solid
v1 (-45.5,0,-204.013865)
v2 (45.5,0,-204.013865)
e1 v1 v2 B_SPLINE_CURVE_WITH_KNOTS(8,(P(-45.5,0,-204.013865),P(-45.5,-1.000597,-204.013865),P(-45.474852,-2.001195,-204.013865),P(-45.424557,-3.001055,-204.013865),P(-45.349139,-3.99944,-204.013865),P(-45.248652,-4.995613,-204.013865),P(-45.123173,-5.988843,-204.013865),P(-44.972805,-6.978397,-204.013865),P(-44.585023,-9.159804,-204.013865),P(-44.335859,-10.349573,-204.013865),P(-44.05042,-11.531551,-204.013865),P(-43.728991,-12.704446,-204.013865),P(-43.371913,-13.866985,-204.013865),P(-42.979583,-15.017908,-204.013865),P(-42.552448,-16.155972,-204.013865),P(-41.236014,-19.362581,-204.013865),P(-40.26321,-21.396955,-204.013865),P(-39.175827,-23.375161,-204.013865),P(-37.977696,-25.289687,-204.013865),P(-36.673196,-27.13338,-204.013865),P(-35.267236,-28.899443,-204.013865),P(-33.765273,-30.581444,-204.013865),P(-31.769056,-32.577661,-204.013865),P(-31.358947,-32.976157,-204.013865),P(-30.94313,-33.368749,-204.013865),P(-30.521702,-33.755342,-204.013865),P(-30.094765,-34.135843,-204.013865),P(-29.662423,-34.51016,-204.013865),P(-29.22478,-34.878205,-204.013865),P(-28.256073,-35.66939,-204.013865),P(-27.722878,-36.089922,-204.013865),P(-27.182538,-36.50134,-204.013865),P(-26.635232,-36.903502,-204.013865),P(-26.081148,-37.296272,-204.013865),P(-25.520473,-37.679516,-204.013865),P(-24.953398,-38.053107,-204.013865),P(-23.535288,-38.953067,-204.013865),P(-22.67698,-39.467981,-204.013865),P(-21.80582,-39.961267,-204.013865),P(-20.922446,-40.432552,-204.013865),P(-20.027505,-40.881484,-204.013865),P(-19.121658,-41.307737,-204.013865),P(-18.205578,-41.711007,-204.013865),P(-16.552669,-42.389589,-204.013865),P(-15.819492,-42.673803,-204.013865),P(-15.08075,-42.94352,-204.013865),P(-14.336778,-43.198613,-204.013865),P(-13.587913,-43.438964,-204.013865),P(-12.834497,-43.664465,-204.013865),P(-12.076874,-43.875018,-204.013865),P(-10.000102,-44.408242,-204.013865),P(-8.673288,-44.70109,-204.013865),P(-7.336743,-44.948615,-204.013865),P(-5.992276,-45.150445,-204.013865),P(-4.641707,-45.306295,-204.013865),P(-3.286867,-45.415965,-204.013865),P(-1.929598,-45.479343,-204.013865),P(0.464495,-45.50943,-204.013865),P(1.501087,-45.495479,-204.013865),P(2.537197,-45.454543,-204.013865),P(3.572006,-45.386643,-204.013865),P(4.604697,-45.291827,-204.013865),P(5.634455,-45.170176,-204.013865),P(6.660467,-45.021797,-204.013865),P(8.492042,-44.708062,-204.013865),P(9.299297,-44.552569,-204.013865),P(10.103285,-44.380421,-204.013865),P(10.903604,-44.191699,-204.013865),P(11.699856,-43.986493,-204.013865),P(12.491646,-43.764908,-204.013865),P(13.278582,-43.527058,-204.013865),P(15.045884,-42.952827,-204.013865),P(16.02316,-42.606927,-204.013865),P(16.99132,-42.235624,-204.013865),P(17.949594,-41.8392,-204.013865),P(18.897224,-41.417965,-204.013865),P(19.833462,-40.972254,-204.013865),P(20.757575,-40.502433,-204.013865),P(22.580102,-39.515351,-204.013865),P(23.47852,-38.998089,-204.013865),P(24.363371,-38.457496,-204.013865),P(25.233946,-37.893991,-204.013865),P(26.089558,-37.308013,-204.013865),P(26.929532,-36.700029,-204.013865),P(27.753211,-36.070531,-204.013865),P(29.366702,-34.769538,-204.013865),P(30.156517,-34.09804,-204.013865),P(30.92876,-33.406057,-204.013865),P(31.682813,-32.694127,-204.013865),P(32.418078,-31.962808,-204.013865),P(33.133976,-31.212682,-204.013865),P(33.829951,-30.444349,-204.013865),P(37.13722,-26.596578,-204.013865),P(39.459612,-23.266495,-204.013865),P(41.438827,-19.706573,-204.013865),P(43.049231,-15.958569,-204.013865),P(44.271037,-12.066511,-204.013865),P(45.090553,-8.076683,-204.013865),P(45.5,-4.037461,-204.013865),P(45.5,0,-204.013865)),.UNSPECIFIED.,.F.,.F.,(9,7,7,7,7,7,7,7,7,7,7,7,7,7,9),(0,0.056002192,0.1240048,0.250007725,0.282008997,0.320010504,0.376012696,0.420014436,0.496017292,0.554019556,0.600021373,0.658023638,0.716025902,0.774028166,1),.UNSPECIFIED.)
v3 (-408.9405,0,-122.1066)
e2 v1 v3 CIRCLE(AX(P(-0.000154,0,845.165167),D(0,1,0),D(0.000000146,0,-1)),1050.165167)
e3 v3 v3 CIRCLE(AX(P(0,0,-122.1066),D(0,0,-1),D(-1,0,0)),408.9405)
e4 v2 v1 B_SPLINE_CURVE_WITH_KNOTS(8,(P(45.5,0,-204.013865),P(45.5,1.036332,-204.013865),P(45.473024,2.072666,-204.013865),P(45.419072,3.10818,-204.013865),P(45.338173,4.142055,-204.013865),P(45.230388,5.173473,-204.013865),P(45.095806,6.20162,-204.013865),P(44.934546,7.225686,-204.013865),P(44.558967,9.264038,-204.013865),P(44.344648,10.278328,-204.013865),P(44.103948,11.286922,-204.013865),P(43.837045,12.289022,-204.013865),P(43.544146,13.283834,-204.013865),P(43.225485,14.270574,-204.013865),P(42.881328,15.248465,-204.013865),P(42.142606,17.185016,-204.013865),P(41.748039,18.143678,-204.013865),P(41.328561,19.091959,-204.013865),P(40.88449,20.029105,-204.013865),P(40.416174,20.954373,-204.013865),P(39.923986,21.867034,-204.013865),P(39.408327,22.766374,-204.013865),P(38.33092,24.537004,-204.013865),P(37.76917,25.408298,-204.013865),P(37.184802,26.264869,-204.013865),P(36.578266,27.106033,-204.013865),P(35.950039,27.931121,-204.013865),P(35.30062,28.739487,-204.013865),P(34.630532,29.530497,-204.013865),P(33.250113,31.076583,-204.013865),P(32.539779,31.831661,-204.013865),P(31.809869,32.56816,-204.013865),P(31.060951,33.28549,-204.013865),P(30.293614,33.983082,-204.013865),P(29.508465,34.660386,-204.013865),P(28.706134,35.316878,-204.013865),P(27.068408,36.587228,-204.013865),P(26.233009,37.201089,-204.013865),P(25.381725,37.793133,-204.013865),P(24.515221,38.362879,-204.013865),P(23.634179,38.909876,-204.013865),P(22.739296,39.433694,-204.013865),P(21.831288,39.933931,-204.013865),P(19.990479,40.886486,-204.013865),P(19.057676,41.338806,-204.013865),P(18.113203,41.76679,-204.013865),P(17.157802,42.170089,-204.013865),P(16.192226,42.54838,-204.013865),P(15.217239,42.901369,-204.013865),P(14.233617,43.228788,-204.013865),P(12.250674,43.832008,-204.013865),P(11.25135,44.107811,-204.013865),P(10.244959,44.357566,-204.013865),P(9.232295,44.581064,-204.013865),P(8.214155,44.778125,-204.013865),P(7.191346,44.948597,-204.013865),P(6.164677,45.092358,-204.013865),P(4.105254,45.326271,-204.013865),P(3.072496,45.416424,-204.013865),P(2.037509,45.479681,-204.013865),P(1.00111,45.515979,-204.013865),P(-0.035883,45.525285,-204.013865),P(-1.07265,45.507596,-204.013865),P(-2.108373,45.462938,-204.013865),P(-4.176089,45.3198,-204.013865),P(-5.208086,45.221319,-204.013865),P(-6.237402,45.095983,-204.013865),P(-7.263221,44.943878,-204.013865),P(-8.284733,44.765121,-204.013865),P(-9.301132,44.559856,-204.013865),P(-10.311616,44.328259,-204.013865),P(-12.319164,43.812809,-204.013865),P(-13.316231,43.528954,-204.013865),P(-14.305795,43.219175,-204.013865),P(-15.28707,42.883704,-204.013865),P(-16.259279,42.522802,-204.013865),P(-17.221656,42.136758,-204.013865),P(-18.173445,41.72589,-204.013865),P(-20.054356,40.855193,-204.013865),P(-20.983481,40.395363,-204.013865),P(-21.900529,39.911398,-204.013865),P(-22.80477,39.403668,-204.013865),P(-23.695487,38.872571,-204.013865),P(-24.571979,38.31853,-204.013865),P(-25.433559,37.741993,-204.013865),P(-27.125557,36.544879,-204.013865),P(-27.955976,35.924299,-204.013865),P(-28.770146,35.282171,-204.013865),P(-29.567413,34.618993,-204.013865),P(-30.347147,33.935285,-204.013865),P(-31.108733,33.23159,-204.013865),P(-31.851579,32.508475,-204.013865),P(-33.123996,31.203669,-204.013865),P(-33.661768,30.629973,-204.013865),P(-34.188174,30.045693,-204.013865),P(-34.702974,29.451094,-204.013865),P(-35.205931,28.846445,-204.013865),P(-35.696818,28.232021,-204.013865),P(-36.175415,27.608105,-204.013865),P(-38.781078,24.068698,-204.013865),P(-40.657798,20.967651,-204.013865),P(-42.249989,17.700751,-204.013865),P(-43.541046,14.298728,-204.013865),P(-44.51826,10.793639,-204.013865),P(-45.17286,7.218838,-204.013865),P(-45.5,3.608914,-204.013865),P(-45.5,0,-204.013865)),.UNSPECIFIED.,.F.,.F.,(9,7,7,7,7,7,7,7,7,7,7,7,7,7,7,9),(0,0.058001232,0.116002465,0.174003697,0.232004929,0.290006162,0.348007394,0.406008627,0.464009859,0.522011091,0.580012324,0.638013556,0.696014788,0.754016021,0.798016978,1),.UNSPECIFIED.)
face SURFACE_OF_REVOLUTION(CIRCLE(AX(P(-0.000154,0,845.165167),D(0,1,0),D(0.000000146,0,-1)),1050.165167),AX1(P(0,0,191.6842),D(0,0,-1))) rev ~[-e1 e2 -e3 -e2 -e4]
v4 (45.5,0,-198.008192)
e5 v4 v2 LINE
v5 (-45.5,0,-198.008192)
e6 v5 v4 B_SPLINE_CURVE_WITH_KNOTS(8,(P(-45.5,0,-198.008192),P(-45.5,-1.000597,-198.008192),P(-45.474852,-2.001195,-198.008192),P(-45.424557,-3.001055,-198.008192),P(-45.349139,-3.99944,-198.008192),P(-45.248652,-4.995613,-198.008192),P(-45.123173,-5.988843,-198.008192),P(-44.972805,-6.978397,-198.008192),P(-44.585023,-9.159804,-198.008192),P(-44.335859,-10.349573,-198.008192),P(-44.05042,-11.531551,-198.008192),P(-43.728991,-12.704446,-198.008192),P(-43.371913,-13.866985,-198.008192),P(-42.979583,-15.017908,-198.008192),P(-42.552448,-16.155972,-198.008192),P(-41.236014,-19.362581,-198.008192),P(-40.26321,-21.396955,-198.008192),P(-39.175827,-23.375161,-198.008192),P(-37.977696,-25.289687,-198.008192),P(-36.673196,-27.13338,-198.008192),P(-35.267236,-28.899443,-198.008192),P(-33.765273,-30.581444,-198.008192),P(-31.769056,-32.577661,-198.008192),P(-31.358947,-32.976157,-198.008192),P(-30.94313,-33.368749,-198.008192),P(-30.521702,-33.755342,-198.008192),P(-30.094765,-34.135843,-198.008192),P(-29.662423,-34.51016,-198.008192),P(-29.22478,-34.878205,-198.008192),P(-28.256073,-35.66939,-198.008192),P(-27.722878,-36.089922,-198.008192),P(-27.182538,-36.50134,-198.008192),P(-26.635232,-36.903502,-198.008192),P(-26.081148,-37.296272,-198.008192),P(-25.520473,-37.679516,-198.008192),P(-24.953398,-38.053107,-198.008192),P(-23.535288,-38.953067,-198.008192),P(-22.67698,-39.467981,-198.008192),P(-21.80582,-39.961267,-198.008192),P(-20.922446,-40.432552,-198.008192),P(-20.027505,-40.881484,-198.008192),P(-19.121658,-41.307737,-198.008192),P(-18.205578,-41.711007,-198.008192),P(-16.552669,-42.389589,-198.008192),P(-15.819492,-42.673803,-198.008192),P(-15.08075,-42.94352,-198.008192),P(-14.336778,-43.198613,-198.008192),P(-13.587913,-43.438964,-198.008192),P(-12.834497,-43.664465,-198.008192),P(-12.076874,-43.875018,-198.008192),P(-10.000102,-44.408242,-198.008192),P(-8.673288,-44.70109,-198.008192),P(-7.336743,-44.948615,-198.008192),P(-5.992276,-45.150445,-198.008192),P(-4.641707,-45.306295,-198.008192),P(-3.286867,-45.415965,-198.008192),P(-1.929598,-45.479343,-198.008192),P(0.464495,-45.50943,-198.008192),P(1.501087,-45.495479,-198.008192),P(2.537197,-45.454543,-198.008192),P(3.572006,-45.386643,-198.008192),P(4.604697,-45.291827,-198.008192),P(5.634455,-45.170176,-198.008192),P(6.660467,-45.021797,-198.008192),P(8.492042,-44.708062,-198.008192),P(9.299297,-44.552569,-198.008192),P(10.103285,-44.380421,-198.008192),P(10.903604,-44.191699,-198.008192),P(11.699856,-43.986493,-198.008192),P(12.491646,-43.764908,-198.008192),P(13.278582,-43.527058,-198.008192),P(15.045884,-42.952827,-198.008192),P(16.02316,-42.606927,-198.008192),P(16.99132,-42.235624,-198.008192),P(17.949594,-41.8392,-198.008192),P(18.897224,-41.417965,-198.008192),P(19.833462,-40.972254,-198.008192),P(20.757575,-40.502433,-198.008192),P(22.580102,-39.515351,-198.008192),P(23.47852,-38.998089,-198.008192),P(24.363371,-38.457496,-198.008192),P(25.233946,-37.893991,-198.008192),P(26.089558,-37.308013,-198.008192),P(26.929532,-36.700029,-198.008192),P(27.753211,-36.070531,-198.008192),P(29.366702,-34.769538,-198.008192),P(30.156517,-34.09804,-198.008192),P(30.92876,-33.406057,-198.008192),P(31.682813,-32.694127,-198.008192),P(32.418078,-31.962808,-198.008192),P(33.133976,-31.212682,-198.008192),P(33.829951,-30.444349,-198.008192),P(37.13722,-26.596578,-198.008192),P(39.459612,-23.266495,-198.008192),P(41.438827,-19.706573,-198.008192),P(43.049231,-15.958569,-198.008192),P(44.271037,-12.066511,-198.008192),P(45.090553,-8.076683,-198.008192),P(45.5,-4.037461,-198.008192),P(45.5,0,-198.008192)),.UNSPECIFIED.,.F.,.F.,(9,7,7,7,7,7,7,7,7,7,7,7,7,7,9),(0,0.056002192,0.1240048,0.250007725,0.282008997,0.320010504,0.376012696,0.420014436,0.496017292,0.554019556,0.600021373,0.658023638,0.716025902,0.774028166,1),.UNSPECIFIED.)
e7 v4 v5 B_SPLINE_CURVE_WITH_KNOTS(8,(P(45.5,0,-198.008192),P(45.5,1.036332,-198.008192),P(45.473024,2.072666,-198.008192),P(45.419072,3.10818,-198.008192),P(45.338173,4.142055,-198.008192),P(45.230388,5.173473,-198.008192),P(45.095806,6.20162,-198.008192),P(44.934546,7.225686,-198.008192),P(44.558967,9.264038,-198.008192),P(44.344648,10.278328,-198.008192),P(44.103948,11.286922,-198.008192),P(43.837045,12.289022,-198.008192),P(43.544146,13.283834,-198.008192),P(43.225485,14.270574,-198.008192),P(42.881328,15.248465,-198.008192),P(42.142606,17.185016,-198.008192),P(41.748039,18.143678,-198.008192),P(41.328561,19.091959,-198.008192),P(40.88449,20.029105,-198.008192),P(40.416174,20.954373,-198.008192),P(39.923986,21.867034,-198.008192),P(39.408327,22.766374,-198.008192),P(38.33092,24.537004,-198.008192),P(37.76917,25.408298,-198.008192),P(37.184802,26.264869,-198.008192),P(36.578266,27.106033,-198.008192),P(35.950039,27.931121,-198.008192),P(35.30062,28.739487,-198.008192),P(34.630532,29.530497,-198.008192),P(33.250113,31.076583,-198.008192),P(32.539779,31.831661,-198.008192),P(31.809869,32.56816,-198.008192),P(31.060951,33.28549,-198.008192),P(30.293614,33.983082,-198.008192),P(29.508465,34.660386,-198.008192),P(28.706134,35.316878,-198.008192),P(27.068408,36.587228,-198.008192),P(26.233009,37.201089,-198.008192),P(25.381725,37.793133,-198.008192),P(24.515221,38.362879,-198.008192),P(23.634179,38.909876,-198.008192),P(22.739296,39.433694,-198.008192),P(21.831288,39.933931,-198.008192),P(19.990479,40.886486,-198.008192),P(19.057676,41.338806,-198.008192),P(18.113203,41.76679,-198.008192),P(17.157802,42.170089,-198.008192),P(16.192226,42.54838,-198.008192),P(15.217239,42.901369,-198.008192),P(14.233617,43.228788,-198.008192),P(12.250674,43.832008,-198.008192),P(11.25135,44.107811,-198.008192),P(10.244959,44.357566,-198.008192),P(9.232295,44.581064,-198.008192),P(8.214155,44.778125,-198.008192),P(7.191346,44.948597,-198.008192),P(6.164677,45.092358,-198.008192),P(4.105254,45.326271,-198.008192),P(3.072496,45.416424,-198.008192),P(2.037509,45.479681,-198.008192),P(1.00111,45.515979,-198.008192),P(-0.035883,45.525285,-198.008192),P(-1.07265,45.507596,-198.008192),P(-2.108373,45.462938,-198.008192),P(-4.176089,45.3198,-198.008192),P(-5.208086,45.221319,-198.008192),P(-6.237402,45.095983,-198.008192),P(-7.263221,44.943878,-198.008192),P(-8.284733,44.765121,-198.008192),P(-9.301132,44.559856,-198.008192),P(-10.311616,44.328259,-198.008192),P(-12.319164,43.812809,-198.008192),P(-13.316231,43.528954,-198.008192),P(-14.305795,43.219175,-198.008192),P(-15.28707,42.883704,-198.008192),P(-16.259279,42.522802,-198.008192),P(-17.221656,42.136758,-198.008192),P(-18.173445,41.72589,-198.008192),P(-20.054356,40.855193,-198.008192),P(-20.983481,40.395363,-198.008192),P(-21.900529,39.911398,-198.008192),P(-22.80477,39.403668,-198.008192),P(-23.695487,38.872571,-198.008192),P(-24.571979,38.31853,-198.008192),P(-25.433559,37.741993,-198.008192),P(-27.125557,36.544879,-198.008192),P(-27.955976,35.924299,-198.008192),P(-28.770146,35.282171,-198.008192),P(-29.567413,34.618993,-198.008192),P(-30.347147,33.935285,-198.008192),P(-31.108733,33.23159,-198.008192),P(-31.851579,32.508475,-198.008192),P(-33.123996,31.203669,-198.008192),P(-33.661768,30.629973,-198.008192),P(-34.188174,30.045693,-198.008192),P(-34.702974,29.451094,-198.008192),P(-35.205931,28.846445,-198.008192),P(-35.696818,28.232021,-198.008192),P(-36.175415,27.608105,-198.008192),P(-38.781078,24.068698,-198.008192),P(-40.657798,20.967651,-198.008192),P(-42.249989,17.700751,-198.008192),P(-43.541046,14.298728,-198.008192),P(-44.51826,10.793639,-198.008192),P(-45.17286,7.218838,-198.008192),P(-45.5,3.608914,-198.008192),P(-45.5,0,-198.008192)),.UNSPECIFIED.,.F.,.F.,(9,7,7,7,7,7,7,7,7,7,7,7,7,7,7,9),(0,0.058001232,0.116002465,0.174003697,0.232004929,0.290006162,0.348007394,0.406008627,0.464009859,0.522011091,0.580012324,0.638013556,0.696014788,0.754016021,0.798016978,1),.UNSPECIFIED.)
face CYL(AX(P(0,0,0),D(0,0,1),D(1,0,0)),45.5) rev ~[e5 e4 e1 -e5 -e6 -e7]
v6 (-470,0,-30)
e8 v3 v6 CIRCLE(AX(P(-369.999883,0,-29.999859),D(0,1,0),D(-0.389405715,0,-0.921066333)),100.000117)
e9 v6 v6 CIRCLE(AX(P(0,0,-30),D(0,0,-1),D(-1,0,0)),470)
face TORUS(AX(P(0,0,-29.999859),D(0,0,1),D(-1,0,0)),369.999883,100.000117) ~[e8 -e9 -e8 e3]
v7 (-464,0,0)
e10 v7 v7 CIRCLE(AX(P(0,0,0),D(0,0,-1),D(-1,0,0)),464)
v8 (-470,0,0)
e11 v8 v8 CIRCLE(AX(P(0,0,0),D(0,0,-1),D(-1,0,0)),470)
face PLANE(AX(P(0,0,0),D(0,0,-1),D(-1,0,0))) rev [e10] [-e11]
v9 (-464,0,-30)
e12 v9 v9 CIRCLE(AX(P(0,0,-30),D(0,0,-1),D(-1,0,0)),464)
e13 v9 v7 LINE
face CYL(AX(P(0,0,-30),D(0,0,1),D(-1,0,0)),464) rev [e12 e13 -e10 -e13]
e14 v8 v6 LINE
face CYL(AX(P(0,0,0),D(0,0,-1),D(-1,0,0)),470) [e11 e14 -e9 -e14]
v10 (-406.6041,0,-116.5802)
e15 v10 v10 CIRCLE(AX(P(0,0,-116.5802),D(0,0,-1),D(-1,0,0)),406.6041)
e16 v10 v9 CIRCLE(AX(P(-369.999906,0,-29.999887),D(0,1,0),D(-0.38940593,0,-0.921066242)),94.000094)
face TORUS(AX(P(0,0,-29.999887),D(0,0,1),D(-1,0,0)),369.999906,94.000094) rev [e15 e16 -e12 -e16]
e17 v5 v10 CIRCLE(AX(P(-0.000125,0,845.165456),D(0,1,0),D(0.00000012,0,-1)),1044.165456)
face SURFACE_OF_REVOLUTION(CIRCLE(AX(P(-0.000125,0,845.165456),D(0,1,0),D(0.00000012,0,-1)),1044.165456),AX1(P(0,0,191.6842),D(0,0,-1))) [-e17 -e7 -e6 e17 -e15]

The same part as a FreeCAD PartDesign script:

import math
import FreeCAD as App
import Part
import Sketcher
from FreeCAD import Vector

doc = App.newDocument("Part")
body = doc.addObject("PartDesign::Body", "Body")

sketch1 = body.newObject("Sketcher::SketchObject", "Sketch")
sketch1.AttachmentSupport = (doc.getObject("XZ_Plane"), [""])
sketch1.MapMode = "FlatFace"
sketch1.addGeometry(Part.LineSegment(Vector(-470, -30, 0), Vector(-470, 0, 0)), False)
sketch1.addGeometry(Part.LineSegment(Vector(-470, 0, 0), Vector(-464, 0, 0)), False)
sketch1.addGeometry(Part.LineSegment(Vector(-464, 0, 0), Vector(-464, -30, 0)), False)
sketch1.addGeometry(Part.ArcOfCircle(Part.Circle(Vector(-370, -30, 0), Vector(0, 0, 1), 94), math.radians(180), math.radians(247)), False)
sketch1.addGeometry(Part.ArcOfCircle(Part.Circle(Vector(0, 845, 0), Vector(0, 0, 1), 1044), math.radians(-113), math.radians(-90)), False)
sketch1.addGeometry(Part.LineSegment(Vector(0, -199, 0), Vector(0, -205, 0)), False)
sketch1.addGeometry(Part.ArcOfCircle(Part.Circle(Vector(0, 845, 0), Vector(0, 0, 1), 1050), math.radians(-113), math.radians(-90)), False)
sketch1.addGeometry(Part.ArcOfCircle(Part.Circle(Vector(-370, -30, 0), Vector(0, 0, 1), 100), math.radians(180), math.radians(247)), False)
sketch1.addConstraint(Sketcher.Constraint("Coincident", 0, 2, 1, 1))
sketch1.addConstraint(Sketcher.Constraint("Coincident", 1, 2, 2, 1))
sketch1.addConstraint(Sketcher.Constraint("Tangent", 2, 2, 3, 1))
sketch1.addConstraint(Sketcher.Constraint("Tangent", 3, 2, 4, 1))
sketch1.addConstraint(Sketcher.Constraint("Coincident", 4, 2, 5, 1))
sketch1.addConstraint(Sketcher.Constraint("Coincident", 5, 2, 6, 2))
sketch1.addConstraint(Sketcher.Constraint("Tangent", 6, 1, 7, 2))
sketch1.addConstraint(Sketcher.Constraint("Tangent", 7, 1, 0, 1))
sketch1.addConstraint(Sketcher.Constraint("Vertical", 0))
sketch1.addConstraint(Sketcher.Constraint("Horizontal", 1))
sketch1.addConstraint(Sketcher.Constraint("Vertical", 2))
sketch1.addConstraint(Sketcher.Constraint("Vertical", 5))
sketch1.addConstraint(Sketcher.Constraint("Coincident", 6, 3, 4, 3))
sketch1.addConstraint(Sketcher.Constraint("Coincident", 7, 3, 3, 3))
sketch1.addConstraint(Sketcher.Constraint("PointOnObject", 4, 3, -2))
sketch1.addConstraint(Sketcher.Constraint("PointOnObject", 0, 2, -1))
sketch1.addConstraint(Sketcher.Constraint("PointOnObject", 5, 2, -2))
sketch1.addConstraint(Sketcher.Constraint("Radius", 7, 100.0))
sketch1.addConstraint(Sketcher.Constraint("DistanceX", 1, 1, 1, 2, 6.0))
sketch1.addConstraint(Sketcher.Constraint("DistanceY", 0, 1, 0, 2, 30.0))
sketch1.addConstraint(Sketcher.Constraint("DistanceY", 5, 2, -1, 1, 205.0))
sketch1.addConstraint(Sketcher.Constraint("DistanceX", 3, 3, -1, 1, 370.0))
revolution = body.newObject("PartDesign::Revolution", "Revolution")
revolution.Profile = sketch1
revolution.ReferenceAxis = (sketch1, ["V_Axis"])
revolution.Angle = 360

sketch2 = body.newObject("Sketcher::SketchObject", "Sketch001")
sketch2.AttachmentSupport = (doc.getObject("XY_Plane"), [""])
sketch2.MapMode = "FlatFace"
sketch2.addGeometry(Part.Circle(Vector(0, 0, 0), Vector(0, 0, 1), 46), False)
sketch2.addConstraint(Sketcher.Constraint("Coincident", 0, 3, -1, 1))
sketch2.addConstraint(Sketcher.Constraint("Diameter", 0, 91.0))
pocket1 = body.newObject("PartDesign::Pocket", "Pocket")
pocket1.Profile = sketch2
pocket1.Type = "ThroughAll"

doc.recompute()
